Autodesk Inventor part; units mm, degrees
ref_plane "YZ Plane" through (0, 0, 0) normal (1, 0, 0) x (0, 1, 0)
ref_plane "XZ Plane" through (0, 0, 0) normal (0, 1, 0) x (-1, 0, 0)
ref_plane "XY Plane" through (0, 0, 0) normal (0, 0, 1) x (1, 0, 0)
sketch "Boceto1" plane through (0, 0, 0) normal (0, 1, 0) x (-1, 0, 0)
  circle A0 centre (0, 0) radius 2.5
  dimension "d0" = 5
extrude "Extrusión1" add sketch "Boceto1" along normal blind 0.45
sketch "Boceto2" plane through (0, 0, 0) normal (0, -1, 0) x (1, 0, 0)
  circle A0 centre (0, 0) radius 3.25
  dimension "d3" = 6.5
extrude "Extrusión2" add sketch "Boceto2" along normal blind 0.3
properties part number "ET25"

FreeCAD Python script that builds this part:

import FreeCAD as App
import Part
import Sketcher

V = App.Vector
Q = App.Units.Quantity

doc = App.newDocument("Part")
params = doc.addObject("Spreadsheet::Sheet", "Params")
for row, (alias, value) in enumerate([
    ("sketch1_diameter", "5 mm"),
    ("pad1_length", "0.45 mm"),
    ("sketch2_diameter", "6.5 mm"),
    ("pad2_length", "0.3 mm"),
], start=1):
    params.set(f"A{row}", alias)
    params.set(f"B{row}", "=" + value)
    params.setAlias(f"B{row}", alias)

body = doc.addObject("PartDesign::Body", "Body")

# Sketch on XZ plane
sketch1 = body.newObject("Sketcher::SketchObject", "Sketch")
sketch1.AttachmentSupport = (doc.getObject("XZ_Plane"), [""])
sketch1.MapMode = "FlatFace"
sketch1.addGeometry(Part.Circle(V(0, 0, 0), V(0, 0, 1), 2.5), False)
sketch1.addConstraint([
    Sketcher.Constraint("Coincident", 0, 3, -1, 1),
    Sketcher.Constraint("Diameter", 0, Q("5 mm")),
])
sketch1.setExpression("Constraints[1]", "Params.sketch1_diameter")
pad1 = body.newObject("PartDesign::Pad", "Pad")
pad1.Profile = sketch1
pad1.setExpression("Length", "Params.pad1_length")
pad1.Reversed = True

# Sketch on XZ plane
sketch2 = body.newObject("Sketcher::SketchObject", "Sketch001")
sketch2.AttachmentSupport = (doc.getObject("XZ_Plane"), [""])
sketch2.MapMode = "FlatFace"
sketch2.addGeometry(Part.Circle(V(0, 0, 0), V(0, 0, 1), 3.2), False)
sketch2.addConstraint([
    Sketcher.Constraint("Coincident", 0, 3, -1, 1),
    Sketcher.Constraint("Diameter", 0, Q("6.5 mm")),
])
sketch2.setExpression("Constraints[1]", "Params.sketch2_diameter")
pad2 = body.newObject("PartDesign::Pad", "Pad001")
pad2.Profile = sketch2
pad2.setExpression("Length", "Params.pad2_length")

doc.recompute()
